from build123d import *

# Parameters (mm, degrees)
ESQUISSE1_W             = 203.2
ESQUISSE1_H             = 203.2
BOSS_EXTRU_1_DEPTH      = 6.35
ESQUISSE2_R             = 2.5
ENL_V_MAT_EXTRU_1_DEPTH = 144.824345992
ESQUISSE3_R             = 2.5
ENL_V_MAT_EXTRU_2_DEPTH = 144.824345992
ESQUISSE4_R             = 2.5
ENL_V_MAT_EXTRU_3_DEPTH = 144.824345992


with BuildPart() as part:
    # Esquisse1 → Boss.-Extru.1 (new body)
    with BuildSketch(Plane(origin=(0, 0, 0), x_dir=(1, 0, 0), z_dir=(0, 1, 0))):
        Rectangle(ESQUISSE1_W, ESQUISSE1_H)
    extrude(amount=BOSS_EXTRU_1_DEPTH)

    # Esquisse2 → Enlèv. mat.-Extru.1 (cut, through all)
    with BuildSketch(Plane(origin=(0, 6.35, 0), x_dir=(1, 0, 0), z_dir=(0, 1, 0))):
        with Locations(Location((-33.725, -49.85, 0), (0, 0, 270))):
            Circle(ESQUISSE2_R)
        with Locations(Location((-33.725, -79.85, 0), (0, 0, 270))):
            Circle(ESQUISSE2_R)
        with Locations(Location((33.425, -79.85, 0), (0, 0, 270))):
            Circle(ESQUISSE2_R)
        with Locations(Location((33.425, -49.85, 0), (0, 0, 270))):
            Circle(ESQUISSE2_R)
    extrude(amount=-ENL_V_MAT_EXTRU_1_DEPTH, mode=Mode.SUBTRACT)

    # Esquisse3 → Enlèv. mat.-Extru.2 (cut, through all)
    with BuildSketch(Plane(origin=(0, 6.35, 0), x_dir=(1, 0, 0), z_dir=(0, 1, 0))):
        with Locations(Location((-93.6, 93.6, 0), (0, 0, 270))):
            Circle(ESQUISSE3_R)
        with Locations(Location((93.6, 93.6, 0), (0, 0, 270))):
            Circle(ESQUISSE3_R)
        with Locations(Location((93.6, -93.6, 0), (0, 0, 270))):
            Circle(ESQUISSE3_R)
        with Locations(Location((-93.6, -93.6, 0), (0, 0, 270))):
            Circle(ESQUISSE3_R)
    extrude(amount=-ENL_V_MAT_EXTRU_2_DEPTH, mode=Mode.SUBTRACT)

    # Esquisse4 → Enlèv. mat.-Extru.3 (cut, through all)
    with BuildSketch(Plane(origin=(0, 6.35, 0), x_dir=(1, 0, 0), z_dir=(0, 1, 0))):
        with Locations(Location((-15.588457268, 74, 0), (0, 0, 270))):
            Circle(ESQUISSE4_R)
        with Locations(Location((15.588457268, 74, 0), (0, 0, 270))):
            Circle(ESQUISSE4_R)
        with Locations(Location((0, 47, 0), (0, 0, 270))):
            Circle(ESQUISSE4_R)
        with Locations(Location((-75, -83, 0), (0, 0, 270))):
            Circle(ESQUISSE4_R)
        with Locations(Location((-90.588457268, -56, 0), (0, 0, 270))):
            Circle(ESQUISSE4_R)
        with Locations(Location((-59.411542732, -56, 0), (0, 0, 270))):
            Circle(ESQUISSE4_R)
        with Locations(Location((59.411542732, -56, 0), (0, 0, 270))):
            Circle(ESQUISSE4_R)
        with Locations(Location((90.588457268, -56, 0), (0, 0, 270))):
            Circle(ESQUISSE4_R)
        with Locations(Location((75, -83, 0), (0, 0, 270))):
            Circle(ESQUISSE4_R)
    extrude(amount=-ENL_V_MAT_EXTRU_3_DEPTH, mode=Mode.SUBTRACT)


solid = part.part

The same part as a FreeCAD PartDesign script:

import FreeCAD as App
import Part
import Sketcher
Q = App.Units.Quantity

doc = App.newDocument("Part")
body = doc.addObject("PartDesign::Body", "Body")

# Sketch on XZ plane
sketch1 = body.newObject("Sketcher::SketchObject", "Sketch")
sketch1.AttachmentSupport = (doc.getObject("XZ_Plane"), [""])
sketch1.MapMode = "FlatFace"
sketch1.addGeometry([
    Part.LineSegment(App.Vector(-101.6, -101.6, 0), App.Vector(-101.6, 101.6, 0)),
    Part.LineSegment(App.Vector(-101.6, 101.6, 0), App.Vector(101.6, 101.6, 0)),
    Part.LineSegment(App.Vector(101.6, 101.6, 0), App.Vector(101.6, -101.6, 0)),
    Part.LineSegment(App.Vector(101.6, -101.6, 0), App.Vector(-101.6, -101.6, 0)),
], False)
sketch1.addConstraint([
    Sketcher.Constraint("Coincident", 0, 2, 1, 1),
    Sketcher.Constraint("Coincident", 1, 2, 2, 1),
    Sketcher.Constraint("Coincident", 2, 2, 3, 1),
    Sketcher.Constraint("Coincident", 3, 2, 0, 1),
    Sketcher.Constraint("Vertical", 0),
    Sketcher.Constraint("Horizontal", 1),
    Sketcher.Constraint("Vertical", 2),
    Sketcher.Constraint("Horizontal", 3),
    Sketcher.Constraint("Symmetric", 0, 2, 2, 2, -1, 1),
    Sketcher.Constraint("Equal", 3, 0),
    Sketcher.Constraint("DistanceX", 1, 1, 1, 2, Q("8 in")),
])
pad1 = body.newObject("PartDesign::Pad", "Pad")
pad1.Profile = sketch1
pad1.Length = Q("0.25 in")
pad1.Reversed = True

# Sketch on XZ plane
sketch2 = body.newObject("Sketcher::SketchObject", "Sketch001")
sketch2.AttachmentSupport = (doc.getObject("XZ_Plane"), [""])
sketch2.MapMode = "FlatFace"
sketch2.AttachmentOffset = App.Placement(App.Vector(0, 0, -0.25 * 25.4), App.Rotation())
sketch2.addGeometry([
    Part.Circle(App.Vector(-33.725, 49.85, 0), App.Vector(0, 0, 1), 2.5),
    Part.Circle(App.Vector(-33.725, 79.85, 0), App.Vector(0, 0, 1), 2.5),
    Part.Circle(App.Vector(33.425, 79.85, 0), App.Vector(0, 0, 1), 2.5),
    Part.Circle(App.Vector(33.425, 49.85, 0), App.Vector(0, 0, 1), 2.5),
], False)
sketch2.addConstraint([
    Sketcher.Constraint("Equal", 0, 1),
    Sketcher.Constraint("Equal", 1, 2),
    Sketcher.Constraint("Equal", 2, 3),
    Sketcher.Constraint("Horizontal", 1, 3, 2, 3),
    Sketcher.Constraint("Horizontal", 0, 3, 3, 3),
    Sketcher.Constraint("Vertical", 0, 3, 1, 3),
    Sketcher.Constraint("Vertical", 2, 3, 3, 3),
    Sketcher.Constraint("Diameter", 0, 5.0),
    Sketcher.Constraint("DistanceX", 0, 3, -1, 1, 33.725),
    Sketcher.Constraint("DistanceY", -1, 1, 0, 3, 49.85),
    Sketcher.Constraint("DistanceY", -1, 1, 1, 3, 79.85),
    Sketcher.Constraint("DistanceX", -1, 1, 2, 3, 33.425),
])
pocket1 = body.newObject("PartDesign::Pocket", "Pocket")
pocket1.Profile = sketch2
pocket1.Type = "ThroughAll"
pocket1.Reversed = True

# Sketch on XZ plane
sketch3 = body.newObject("Sketcher::SketchObject", "Sketch002")
sketch3.AttachmentSupport = (doc.getObject("XZ_Plane"), [""])
sketch3.MapMode = "FlatFace"
sketch3.AttachmentOffset = App.Placement(App.Vector(0, 0, -0.25 * 25.4), App.Rotation())
sketch3.addGeometry([
    Part.Circle(App.Vector(-93.6, -93.6, 0), App.Vector(0, 0, 1), 2.5),
    Part.Circle(App.Vector(93.6, -93.6, 0), App.Vector(0, 0, 1), 2.5),
    Part.Circle(App.Vector(93.6, 93.6, 0), App.Vector(0, 0, 1), 2.5),
    Part.Circle(App.Vector(-93.6, 93.6, 0), App.Vector(0, 0, 1), 2.5),
], False)
sketch3.addConstraint([
    Sketcher.Constraint("Equal", 0, 1),
    Sketcher.Constraint("Equal", 1, 2),
    Sketcher.Constraint("Equal", 2, 3),
    Sketcher.Constraint("Symmetric", 0, 3, 2, 3, -1, 1),
    Sketcher.Constraint("Symmetric", 1, 3, 3, 3, -1, 1),
    Sketcher.Constraint("Symmetric", 0, 3, 1, 3, -2),
    Sketcher.Constraint("Diameter", 0, 5.0),
    Sketcher.Constraint("DistanceX", 0, 3, -1, 1, 93.6),
    Sketcher.Constraint("DistanceY", 0, 3, -1, 1, 93.6),
])
pocket2 = body.newObject("PartDesign::Pocket", "Pocket001")
pocket2.Profile = sketch3
pocket2.Type = "ThroughAll"
pocket2.Reversed = True

# Sketch on XZ plane
sketch4 = body.newObject("Sketcher::SketchObject", "Sketch003")
sketch4.AttachmentSupport = (doc.getObject("XZ_Plane"), [""])
sketch4.MapMode = "FlatFace"
sketch4.AttachmentOffset = App.Placement(App.Vector(0, 0, -0.25 * 25.4), App.Rotation())
sketch4.addGeometry([
    Part.Circle(App.Vector(-15.588457, -74, 0), App.Vector(0, 0, 1), 2.5),  # 0
    Part.Circle(App.Vector(15.588457, -74, 0), App.Vector(0, 0, 1), 2.5),  # 1
    Part.Circle(App.Vector(0, -47, 0), App.Vector(0, 0, 1), 2.5),  # 2
    Part.Circle(App.Vector(-75, 83, 0), App.Vector(0, 0, 1), 2.5),  # 3
    Part.Circle(App.Vector(-90.588457, 56, 0), App.Vector(0, 0, 1), 2.5),  # 4
    Part.Circle(App.Vector(-59.411543, 56, 0), App.Vector(0, 0, 1), 2.5),  # 5
    Part.Circle(App.Vector(59.411543, 56, 0), App.Vector(0, 0, 1), 2.5),  # 6
    Part.Circle(App.Vector(90.588457, 56, 0), App.Vector(0, 0, 1), 2.5),  # 7
    Part.Circle(App.Vector(75, 83, 0), App.Vector(0, 0, 1), 2.5),  # 8
], False)
sketch4.addConstraint([
    Sketcher.Constraint("Equal", 0, 1),
    Sketcher.Constraint("Equal", 1, 2),
    Sketcher.Constraint("Equal", 2, 3),
    Sketcher.Constraint("Equal", 3, 4),
    Sketcher.Constraint("Equal", 4, 5),
    Sketcher.Constraint("Equal", 5, 6),
    Sketcher.Constraint("Equal", 6, 7),
    Sketcher.Constraint("Equal", 7, 8),
    Sketcher.Constraint("Symmetric", 0, 3, 1, 3, -2),
    Sketcher.Constraint("Symmetric", 5, 3, 6, 3, -2),
    Sketcher.Constraint("Symmetric", 4, 3, 7, 3, -2),
    Sketcher.Constraint("Symmetric", 3, 3, 8, 3, -2),
    Sketcher.Constraint("PointOnObject", 2, 3, -2),
    Sketcher.Constraint("Horizontal", 4, 3, 5, 3),
    Sketcher.Constraint("Diameter", 0, 5.0),
    Sketcher.Constraint("DistanceY", 0, 3, -1, 1, 74.0),
    Sketcher.Constraint("DistanceY", 2, 3, -1, 1, 47.0),
    Sketcher.Constraint("DistanceX", 3, 3, -1, 1, 75.0),
    Sketcher.Constraint("DistanceY", -1, 1, 3, 3, 83.0),
    Sketcher.Constraint("DistanceY", -1, 1, 4, 3, 56.0),
    Sketcher.Constraint("DistanceX", 4, 3, 0, 3, 75.0),
    Sketcher.Constraint("DistanceX", 5, 3, 1, 3, 75.0),
    Sketcher.Constraint("DistanceX", 0, 3, -1, 1, 15.588457),
])
pocket3 = body.newObject("PartDesign::Pocket", "Pocket002")
pocket3.Profile = sketch4
pocket3.Type = "ThroughAll"
pocket3.Reversed = True

doc.recompute()
